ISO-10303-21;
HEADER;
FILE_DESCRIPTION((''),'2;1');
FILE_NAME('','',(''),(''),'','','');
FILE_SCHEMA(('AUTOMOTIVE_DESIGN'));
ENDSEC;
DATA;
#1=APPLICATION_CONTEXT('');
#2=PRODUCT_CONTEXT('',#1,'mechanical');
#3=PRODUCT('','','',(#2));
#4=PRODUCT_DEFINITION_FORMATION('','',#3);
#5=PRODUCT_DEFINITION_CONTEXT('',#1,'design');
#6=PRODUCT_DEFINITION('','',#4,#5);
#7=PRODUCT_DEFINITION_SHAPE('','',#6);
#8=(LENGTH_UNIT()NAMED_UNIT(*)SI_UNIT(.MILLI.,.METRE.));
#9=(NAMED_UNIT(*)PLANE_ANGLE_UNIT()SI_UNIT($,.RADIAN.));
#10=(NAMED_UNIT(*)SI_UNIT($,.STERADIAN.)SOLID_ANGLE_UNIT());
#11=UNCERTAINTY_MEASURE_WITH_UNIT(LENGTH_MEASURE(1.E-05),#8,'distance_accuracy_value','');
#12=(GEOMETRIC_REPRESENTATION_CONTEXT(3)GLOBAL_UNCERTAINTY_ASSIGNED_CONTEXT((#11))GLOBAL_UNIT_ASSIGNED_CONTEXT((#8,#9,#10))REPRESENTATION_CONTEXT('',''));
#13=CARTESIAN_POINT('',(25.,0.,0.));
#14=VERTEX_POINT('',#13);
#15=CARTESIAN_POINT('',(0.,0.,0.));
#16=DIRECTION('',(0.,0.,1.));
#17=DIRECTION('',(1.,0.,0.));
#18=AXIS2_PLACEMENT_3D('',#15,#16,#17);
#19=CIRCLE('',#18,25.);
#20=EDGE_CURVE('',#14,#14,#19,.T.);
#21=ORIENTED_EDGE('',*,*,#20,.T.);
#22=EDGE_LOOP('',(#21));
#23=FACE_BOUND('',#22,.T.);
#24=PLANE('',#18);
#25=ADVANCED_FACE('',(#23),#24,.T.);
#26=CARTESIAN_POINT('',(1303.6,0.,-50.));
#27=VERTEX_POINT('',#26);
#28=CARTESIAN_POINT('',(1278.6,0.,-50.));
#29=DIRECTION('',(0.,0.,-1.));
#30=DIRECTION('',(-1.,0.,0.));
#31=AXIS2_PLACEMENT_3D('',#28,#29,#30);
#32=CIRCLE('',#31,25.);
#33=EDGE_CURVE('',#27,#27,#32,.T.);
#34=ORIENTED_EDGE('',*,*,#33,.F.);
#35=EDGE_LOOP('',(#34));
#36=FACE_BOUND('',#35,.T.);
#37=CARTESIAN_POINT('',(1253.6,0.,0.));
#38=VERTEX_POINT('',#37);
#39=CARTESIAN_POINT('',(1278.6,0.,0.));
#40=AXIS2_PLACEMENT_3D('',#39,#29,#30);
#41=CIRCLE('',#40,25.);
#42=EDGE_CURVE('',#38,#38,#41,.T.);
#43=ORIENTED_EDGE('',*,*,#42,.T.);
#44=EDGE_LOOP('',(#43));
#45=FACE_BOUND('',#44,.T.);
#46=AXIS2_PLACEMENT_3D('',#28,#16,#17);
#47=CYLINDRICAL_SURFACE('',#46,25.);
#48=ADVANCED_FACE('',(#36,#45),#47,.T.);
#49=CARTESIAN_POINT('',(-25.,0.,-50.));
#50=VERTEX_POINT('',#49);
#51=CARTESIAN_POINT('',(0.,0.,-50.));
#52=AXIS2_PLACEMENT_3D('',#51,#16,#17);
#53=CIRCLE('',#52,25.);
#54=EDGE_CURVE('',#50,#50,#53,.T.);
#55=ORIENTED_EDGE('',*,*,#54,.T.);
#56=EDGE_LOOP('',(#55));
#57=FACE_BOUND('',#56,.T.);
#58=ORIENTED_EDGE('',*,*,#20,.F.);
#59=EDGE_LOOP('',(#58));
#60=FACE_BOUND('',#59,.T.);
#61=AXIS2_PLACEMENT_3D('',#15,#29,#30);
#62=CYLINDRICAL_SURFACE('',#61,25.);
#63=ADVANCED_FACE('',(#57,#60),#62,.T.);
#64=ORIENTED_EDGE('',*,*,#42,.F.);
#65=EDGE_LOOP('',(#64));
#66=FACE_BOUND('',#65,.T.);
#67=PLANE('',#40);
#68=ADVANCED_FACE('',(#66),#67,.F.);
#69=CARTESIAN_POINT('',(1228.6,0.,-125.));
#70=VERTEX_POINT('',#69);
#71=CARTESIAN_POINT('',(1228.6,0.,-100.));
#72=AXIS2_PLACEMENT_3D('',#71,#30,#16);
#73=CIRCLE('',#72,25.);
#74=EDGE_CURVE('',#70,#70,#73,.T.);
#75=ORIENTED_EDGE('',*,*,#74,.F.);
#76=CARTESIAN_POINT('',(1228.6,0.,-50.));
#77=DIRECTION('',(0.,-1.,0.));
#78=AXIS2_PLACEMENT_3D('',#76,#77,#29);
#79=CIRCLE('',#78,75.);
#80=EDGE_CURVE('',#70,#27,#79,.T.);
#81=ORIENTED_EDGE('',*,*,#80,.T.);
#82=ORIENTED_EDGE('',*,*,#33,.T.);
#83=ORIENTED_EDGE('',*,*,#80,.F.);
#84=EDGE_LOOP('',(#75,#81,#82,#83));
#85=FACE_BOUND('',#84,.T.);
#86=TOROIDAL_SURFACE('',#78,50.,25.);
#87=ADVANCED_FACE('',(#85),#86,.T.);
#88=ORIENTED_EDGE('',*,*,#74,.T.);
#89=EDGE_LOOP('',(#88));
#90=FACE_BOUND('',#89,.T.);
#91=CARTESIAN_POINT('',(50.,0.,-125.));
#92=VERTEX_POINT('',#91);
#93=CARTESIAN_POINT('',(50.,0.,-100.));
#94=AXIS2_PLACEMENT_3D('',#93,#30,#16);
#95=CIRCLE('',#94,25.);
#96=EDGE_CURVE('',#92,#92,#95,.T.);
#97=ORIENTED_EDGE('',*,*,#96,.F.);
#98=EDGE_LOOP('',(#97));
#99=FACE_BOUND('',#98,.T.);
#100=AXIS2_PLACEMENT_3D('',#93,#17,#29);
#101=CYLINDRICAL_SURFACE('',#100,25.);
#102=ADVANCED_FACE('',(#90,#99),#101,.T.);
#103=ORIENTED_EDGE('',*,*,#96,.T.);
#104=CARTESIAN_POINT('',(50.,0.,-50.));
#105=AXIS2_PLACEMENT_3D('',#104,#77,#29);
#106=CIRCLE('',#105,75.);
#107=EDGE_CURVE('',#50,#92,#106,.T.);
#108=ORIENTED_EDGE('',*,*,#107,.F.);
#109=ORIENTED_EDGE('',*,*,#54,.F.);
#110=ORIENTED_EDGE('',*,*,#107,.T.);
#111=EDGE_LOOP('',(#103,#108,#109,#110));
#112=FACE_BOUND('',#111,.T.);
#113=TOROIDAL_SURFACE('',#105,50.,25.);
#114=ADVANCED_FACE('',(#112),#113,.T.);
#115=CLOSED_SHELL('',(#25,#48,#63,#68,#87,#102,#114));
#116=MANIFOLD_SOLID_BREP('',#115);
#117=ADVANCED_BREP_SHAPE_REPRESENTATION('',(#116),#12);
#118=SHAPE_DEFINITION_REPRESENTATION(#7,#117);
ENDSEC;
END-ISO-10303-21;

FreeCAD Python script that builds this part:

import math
import FreeCAD as App
import Part
import Sketcher

V = App.Vector

doc = App.newDocument("Part")
body = doc.addObject("PartDesign::Body", "Body")

# Sketch on XY plane
sketch1 = body.newObject("Sketcher::SketchObject", "Sketch")
sketch1.AttachmentSupport = (doc.getObject("XY_Plane"), [""])
sketch1.MapMode = "FlatFace"
sketch1.addGeometry(Part.Circle(V(0, 0, 0), V(0, 0, 1), 25), False)
sketch1.addConstraint([
    Sketcher.Constraint("Coincident", 0, 3, -1, 1),
    Sketcher.Constraint("Diameter", 0, 50.0),
])

# Sketch on XZ plane
sketch2 = body.newObject("Sketcher::SketchObject", "Sketch001")
sketch2.AttachmentSupport = (doc.getObject("XZ_Plane"), [""])
sketch2.MapMode = "FlatFace"
sketch2.addGeometry([
    Part.LineSegment(V(0, 0, 0), V(0, -50, 0)),  # 0
    Part.ArcOfCircle(Part.Circle(V(50, -50, 0), V(0, 0, 1), 50), math.radians(-180), math.radians(-90)),  # 1
    Part.LineSegment(V(50, -100, 0), V(1229, -100, 0)),  # 2
    Part.ArcOfCircle(Part.Circle(V(1229, -50, 0), V(0, 0, 1), 50), math.radians(-90), math.radians(0)),  # 3
    Part.LineSegment(V(1279, -50, 0), V(1279, 0, 0)),  # 4
], False)
sketch2.addConstraint([
    Sketcher.Constraint("Tangent", 0, 2, 1, 1),
    Sketcher.Constraint("Tangent", 1, 2, 2, 1),
    Sketcher.Constraint("Tangent", 2, 2, 3, 1),
    Sketcher.Constraint("Tangent", 3, 2, 4, 1),
    Sketcher.Constraint("Vertical", 0),
    Sketcher.Constraint("Horizontal", 2),
    Sketcher.Constraint("Vertical", 4),
    Sketcher.Constraint("Coincident", 0, 1, -1, 1),
    Sketcher.Constraint("Equal", 1, 3),
    Sketcher.Constraint("PointOnObject", 4, 2, -1),
    Sketcher.Constraint("Radius", 1, 50.0),
    Sketcher.Constraint("DistanceY", 0, 2, 0, 1, 50.0),
    Sketcher.Constraint("DistanceX", 2, 1, 2, 2, 1178.6),
])
doc.recompute()

additivepipe = body.newObject("PartDesign::AdditivePipe", "AdditivePipe")
additivepipe.Profile = sketch1
additivepipe.Spine = (sketch2, ["Edge1", "Edge2", "Edge3", "Edge4", "Edge5"])

doc.recompute()
